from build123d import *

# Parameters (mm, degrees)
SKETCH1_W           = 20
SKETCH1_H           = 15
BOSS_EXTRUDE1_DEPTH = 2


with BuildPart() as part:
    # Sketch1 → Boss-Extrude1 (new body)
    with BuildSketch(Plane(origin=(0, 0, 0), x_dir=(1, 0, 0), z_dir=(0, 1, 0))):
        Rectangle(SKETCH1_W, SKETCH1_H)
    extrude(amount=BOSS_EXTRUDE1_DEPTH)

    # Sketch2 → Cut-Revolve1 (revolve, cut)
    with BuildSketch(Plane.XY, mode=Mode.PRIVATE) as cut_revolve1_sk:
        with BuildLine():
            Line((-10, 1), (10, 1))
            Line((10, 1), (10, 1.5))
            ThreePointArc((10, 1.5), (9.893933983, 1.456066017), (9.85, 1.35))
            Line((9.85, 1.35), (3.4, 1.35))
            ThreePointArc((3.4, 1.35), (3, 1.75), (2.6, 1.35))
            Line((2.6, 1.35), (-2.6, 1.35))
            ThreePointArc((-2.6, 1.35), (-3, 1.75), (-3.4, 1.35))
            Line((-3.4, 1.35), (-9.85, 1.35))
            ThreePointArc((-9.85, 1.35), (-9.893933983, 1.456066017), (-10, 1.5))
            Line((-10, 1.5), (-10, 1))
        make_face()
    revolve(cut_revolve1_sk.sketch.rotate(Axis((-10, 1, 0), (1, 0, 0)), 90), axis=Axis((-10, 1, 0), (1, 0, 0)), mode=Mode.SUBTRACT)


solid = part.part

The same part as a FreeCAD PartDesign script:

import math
import FreeCAD as App
import Part
import Sketcher

doc = App.newDocument("Part")
body = doc.addObject("PartDesign::Body", "Body")

sketch1 = body.newObject("Sketcher::SketchObject", "Sketch")
sketch1.AttachmentSupport = (doc.getObject("XZ_Plane"), [""])
sketch1.MapMode = "FlatFace"
sketch1.addGeometry([
    Part.LineSegment(App.Vector(-10, -7.5, 0), App.Vector(-10, 7.5, 0)),
    Part.LineSegment(App.Vector(-10, 7.5, 0), App.Vector(10, 7.5, 0)),
    Part.LineSegment(App.Vector(10, 7.5, 0), App.Vector(10, -7.5, 0)),
    Part.LineSegment(App.Vector(10, -7.5, 0), App.Vector(-10, -7.5, 0)),
], False)
sketch1.addConstraint([
    Sketcher.Constraint("Coincident", 0, 2, 1, 1),
    Sketcher.Constraint("Coincident", 1, 2, 2, 1),
    Sketcher.Constraint("Coincident", 2, 2, 3, 1),
    Sketcher.Constraint("Coincident", 3, 2, 0, 1),
    Sketcher.Constraint("Vertical", 0),
    Sketcher.Constraint("Horizontal", 1),
    Sketcher.Constraint("Vertical", 2),
    Sketcher.Constraint("Horizontal", 3),
    Sketcher.Constraint("Symmetric", 0, 2, 2, 2, -1, 1),
    Sketcher.Constraint("DistanceX", 1, 1, 1, 2, 20.0),
    Sketcher.Constraint("DistanceY", 0, 1, 0, 2, 15.0),
])
pad1 = body.newObject("PartDesign::Pad", "Pad")
pad1.Profile = sketch1
pad1.Length = 2
pad1.Reversed = True

sketch2 = body.newObject("Sketcher::SketchObject", "Sketch001")
sketch2.AttachmentSupport = (doc.getObject("XY_Plane"), [""])
sketch2.MapMode = "FlatFace"
sketch2.addGeometry([
    Part.LineSegment(App.Vector(-10, 1, 0), App.Vector(10, 1, 0)),
    Part.LineSegment(App.Vector(10, 1, 0), App.Vector(10, 1.5, 0)),
    Part.ArcOfCircle(Part.Circle(App.Vector(10, 1.35, 0), App.Vector(0, 0, 1), 0.15), math.radians(90), math.radians(180)),
    Part.LineSegment(App.Vector(9.85, 1.35, 0), App.Vector(3.4, 1.35, 0)),
    Part.ArcOfCircle(Part.Circle(App.Vector(3, 1.35, 0), App.Vector(0, 0, 1), 0.4), math.radians(0), math.radians(180)),
    Part.LineSegment(App.Vector(2.6, 1.35, 0), App.Vector(-2.6, 1.35, 0)),
    Part.ArcOfCircle(Part.Circle(App.Vector(-3, 1.35, 0), App.Vector(0, 0, 1), 0.4), math.radians(0), math.radians(180)),
    Part.LineSegment(App.Vector(-3.4, 1.35, 0), App.Vector(-9.85, 1.35, 0)),
    Part.ArcOfCircle(Part.Circle(App.Vector(-10, 1.35, 0), App.Vector(0, 0, 1), 0.15), math.radians(0), math.radians(90)),
    Part.LineSegment(App.Vector(-10, 1.5, 0), App.Vector(-10, 1, 0)),
], False)
sketch2.addGeometry(Part.LineSegment(App.Vector(-10, 1, 0), App.Vector(10, 1, 0)), True)
sketch2.addConstraint([
    Sketcher.Constraint("Coincident", 0, 2, 1, 1),
    Sketcher.Constraint("Coincident", 1, 2, 2, 1),
    Sketcher.Constraint("Coincident", 2, 2, 3, 1),
    Sketcher.Constraint("Coincident", 3, 2, 4, 1),
    Sketcher.Constraint("Coincident", 4, 2, 5, 1),
    Sketcher.Constraint("Coincident", 5, 2, 6, 1),
    Sketcher.Constraint("Coincident", 6, 2, 7, 1),
    Sketcher.Constraint("Coincident", 7, 2, 8, 1),
    Sketcher.Constraint("Coincident", 8, 2, 9, 1),
    Sketcher.Constraint("Coincident", 9, 2, 0, 1),
    Sketcher.Constraint("Horizontal", 0),
    Sketcher.Constraint("Vertical", 1),
    Sketcher.Constraint("Horizontal", 3),
    Sketcher.Constraint("Horizontal", 5),
    Sketcher.Constraint("Horizontal", 7),
    Sketcher.Constraint("Vertical", 9),
    Sketcher.Constraint("Horizontal", 10),
    Sketcher.Constraint("Coincident", 10, 1, 9, 2),
    Sketcher.Constraint("Equal", 4, 6),
    Sketcher.Constraint("Equal", 2, 8),
    Sketcher.Constraint("Symmetric", 4, 3, 6, 3, -2),
    Sketcher.Constraint("Symmetric", 2, 3, 8, 3, -2),
    Sketcher.Constraint("Horizontal", 2, 3, 4, 3),
    Sketcher.Constraint("Horizontal", 8, 3, 2, 2),
    Sketcher.Constraint("Horizontal", 3, 2, 4, 2),
    Sketcher.Constraint("Horizontal", 5, 2, 6, 2),
    Sketcher.Constraint("Vertical", 2, 3, 0, 2),
    Sketcher.Constraint("Vertical", 1, 2, 10, 2),
    Sketcher.Constraint("Radius", 4, 0.4),
    Sketcher.Constraint("DistanceX", 0, 1, 0, 2, 20.0),
    Sketcher.Constraint("Radius", 2, 0.15),
    Sketcher.Constraint("DistanceX", 5, 2, 5, 1, 5.2),
    Sketcher.Constraint("DistanceY", 1, 1, 1, 2, 0.5),
    Sketcher.Constraint("DistanceX", -1, 1, 2, 3, 10.0),
    Sketcher.Constraint("DistanceY", -1, 1, 0, 2, 1.0),
])
groove = body.newObject("PartDesign::Groove", "Groove")
groove.Profile = sketch2
groove.ReferenceAxis = (sketch2, ["Axis0"])
groove.Angle = 360

doc.recompute()
